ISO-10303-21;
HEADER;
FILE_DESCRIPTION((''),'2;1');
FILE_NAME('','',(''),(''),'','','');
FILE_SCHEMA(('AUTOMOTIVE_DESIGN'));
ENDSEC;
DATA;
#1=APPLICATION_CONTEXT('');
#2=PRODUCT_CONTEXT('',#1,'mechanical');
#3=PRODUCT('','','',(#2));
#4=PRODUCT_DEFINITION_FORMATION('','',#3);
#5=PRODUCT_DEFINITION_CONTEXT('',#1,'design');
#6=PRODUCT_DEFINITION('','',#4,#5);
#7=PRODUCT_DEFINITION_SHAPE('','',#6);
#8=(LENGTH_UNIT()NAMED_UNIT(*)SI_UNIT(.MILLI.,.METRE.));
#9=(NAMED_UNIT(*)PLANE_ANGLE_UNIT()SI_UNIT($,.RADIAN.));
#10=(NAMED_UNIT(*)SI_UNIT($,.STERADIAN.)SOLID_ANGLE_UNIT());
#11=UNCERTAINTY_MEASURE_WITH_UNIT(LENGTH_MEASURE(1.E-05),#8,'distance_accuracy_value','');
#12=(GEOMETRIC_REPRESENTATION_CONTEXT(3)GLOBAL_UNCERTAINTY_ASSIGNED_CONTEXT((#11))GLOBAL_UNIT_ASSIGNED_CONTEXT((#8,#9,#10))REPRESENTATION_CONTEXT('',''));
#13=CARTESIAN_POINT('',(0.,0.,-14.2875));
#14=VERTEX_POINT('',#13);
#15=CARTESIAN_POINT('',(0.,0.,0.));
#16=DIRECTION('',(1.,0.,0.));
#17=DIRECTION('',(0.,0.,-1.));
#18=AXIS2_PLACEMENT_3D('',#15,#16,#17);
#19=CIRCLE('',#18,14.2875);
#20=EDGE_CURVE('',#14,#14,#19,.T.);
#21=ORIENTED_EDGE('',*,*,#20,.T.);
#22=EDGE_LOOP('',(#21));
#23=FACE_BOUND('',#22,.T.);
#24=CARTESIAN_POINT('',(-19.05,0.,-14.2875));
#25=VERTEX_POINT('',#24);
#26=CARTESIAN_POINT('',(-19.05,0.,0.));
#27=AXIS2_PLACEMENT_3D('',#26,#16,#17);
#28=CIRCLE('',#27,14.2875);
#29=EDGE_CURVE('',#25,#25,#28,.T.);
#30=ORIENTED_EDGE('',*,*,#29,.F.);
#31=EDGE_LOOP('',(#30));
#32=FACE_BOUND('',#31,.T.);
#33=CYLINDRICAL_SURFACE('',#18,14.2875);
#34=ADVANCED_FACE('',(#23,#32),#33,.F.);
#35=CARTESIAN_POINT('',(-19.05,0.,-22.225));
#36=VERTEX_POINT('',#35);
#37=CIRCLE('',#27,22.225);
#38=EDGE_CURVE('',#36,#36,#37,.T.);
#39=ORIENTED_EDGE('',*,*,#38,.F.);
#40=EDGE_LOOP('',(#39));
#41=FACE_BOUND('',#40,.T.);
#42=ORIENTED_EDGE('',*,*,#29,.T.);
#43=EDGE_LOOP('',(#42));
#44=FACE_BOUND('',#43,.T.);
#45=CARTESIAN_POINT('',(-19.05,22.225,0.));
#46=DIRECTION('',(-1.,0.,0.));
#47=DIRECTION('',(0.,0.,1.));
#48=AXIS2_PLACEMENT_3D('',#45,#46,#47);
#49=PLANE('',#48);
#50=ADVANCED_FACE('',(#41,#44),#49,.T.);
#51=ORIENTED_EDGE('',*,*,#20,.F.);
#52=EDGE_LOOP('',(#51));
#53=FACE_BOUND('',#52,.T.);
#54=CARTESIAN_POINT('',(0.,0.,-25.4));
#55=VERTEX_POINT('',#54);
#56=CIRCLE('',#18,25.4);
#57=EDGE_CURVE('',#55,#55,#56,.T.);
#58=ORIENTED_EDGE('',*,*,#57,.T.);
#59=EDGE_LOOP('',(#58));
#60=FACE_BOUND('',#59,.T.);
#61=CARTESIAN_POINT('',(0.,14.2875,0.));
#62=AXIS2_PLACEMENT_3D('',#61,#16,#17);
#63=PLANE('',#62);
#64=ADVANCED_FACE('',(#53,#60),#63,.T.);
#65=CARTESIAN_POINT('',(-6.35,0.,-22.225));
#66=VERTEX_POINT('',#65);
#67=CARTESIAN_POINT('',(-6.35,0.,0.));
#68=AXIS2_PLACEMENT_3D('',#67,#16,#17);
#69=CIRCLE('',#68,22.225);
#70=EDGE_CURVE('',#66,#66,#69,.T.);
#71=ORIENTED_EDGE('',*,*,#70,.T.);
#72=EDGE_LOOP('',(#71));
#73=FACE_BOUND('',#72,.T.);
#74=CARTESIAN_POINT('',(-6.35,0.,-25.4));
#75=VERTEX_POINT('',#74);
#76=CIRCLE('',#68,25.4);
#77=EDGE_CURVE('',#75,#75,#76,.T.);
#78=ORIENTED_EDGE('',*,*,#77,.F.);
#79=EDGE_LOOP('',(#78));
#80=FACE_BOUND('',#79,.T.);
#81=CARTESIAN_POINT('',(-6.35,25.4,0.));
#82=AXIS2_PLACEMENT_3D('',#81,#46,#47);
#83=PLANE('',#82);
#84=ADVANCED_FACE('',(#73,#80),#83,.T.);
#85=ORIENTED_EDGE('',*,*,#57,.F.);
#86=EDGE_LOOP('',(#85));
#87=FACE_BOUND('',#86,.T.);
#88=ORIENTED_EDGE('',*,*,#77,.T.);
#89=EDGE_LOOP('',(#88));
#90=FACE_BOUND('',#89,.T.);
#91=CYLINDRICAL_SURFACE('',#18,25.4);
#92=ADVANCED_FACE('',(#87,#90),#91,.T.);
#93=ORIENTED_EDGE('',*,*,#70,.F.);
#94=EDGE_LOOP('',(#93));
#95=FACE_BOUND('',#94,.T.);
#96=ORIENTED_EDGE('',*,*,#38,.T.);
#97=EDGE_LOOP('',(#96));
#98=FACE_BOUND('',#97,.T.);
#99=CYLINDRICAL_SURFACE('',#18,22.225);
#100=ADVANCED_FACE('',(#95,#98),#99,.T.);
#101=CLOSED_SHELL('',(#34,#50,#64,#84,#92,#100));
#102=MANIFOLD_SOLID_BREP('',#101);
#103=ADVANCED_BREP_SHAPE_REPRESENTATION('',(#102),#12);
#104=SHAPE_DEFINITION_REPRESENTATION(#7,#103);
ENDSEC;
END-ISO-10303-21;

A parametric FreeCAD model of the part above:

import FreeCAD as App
import Part
import Sketcher

V = App.Vector
Q = App.Units.Quantity


def add_polygon(sketch, points):
    """Adds a closed chain of lines whose ends are joined by coincident constraints."""
    first, n = sketch.GeometryCount, len(points)
    for a, b in zip(points, points[1:] + points[:1]):
        sketch.addGeometry(Part.LineSegment(App.Vector(*a, 0), App.Vector(*b, 0)), False)
    for i in range(n):
        sketch.addConstraint(Sketcher.Constraint("Coincident", first + i, 2, first + (i + 1) % n, 1))

doc = App.newDocument("Part")
body = doc.addObject("PartDesign::Body", "Body")

sketch1 = body.newObject("Sketcher::SketchObject", "Sketch")
sketch1.AttachmentSupport = (doc.getObject("XY_Plane"), [""])
sketch1.MapMode = "FlatFace"
add_polygon(sketch1, [(-19.1, 14.3), (0, 14.3), (0, 25.4), (-6.3, 25.4), (-6.3, 22.2), (-19.1, 22.2)])
sketch1.addConstraint([
    Sketcher.Constraint("Horizontal", 0),
    Sketcher.Constraint("Vertical", 1),
    Sketcher.Constraint("Horizontal", 2),
    Sketcher.Constraint("Vertical", 3),
    Sketcher.Constraint("Horizontal", 4),
    Sketcher.Constraint("Vertical", 5),
    Sketcher.Constraint("PointOnObject", 0, 2, -2),
    Sketcher.Constraint("DistanceX", 4, 2, 4, 1, Q("0.5 in")),
    Sketcher.Constraint("DistanceY", -1, 1, 1, 2, Q("1 in")),
    Sketcher.Constraint("DistanceX", 0, 1, 0, 2, Q("0.75 in")),
    Sketcher.Constraint("DistanceY", 1, 1, 1, 2, Q("0.4375 in")),
    Sketcher.Constraint("DistanceY", 3, 2, 3, 1, Q("0.125 in")),
])
revolution = body.newObject("PartDesign::Revolution", "Revolution")
revolution.Profile = sketch1
revolution.ReferenceAxis = (sketch1, ["H_Axis"])
revolution.Angle = 360

doc.recompute()
